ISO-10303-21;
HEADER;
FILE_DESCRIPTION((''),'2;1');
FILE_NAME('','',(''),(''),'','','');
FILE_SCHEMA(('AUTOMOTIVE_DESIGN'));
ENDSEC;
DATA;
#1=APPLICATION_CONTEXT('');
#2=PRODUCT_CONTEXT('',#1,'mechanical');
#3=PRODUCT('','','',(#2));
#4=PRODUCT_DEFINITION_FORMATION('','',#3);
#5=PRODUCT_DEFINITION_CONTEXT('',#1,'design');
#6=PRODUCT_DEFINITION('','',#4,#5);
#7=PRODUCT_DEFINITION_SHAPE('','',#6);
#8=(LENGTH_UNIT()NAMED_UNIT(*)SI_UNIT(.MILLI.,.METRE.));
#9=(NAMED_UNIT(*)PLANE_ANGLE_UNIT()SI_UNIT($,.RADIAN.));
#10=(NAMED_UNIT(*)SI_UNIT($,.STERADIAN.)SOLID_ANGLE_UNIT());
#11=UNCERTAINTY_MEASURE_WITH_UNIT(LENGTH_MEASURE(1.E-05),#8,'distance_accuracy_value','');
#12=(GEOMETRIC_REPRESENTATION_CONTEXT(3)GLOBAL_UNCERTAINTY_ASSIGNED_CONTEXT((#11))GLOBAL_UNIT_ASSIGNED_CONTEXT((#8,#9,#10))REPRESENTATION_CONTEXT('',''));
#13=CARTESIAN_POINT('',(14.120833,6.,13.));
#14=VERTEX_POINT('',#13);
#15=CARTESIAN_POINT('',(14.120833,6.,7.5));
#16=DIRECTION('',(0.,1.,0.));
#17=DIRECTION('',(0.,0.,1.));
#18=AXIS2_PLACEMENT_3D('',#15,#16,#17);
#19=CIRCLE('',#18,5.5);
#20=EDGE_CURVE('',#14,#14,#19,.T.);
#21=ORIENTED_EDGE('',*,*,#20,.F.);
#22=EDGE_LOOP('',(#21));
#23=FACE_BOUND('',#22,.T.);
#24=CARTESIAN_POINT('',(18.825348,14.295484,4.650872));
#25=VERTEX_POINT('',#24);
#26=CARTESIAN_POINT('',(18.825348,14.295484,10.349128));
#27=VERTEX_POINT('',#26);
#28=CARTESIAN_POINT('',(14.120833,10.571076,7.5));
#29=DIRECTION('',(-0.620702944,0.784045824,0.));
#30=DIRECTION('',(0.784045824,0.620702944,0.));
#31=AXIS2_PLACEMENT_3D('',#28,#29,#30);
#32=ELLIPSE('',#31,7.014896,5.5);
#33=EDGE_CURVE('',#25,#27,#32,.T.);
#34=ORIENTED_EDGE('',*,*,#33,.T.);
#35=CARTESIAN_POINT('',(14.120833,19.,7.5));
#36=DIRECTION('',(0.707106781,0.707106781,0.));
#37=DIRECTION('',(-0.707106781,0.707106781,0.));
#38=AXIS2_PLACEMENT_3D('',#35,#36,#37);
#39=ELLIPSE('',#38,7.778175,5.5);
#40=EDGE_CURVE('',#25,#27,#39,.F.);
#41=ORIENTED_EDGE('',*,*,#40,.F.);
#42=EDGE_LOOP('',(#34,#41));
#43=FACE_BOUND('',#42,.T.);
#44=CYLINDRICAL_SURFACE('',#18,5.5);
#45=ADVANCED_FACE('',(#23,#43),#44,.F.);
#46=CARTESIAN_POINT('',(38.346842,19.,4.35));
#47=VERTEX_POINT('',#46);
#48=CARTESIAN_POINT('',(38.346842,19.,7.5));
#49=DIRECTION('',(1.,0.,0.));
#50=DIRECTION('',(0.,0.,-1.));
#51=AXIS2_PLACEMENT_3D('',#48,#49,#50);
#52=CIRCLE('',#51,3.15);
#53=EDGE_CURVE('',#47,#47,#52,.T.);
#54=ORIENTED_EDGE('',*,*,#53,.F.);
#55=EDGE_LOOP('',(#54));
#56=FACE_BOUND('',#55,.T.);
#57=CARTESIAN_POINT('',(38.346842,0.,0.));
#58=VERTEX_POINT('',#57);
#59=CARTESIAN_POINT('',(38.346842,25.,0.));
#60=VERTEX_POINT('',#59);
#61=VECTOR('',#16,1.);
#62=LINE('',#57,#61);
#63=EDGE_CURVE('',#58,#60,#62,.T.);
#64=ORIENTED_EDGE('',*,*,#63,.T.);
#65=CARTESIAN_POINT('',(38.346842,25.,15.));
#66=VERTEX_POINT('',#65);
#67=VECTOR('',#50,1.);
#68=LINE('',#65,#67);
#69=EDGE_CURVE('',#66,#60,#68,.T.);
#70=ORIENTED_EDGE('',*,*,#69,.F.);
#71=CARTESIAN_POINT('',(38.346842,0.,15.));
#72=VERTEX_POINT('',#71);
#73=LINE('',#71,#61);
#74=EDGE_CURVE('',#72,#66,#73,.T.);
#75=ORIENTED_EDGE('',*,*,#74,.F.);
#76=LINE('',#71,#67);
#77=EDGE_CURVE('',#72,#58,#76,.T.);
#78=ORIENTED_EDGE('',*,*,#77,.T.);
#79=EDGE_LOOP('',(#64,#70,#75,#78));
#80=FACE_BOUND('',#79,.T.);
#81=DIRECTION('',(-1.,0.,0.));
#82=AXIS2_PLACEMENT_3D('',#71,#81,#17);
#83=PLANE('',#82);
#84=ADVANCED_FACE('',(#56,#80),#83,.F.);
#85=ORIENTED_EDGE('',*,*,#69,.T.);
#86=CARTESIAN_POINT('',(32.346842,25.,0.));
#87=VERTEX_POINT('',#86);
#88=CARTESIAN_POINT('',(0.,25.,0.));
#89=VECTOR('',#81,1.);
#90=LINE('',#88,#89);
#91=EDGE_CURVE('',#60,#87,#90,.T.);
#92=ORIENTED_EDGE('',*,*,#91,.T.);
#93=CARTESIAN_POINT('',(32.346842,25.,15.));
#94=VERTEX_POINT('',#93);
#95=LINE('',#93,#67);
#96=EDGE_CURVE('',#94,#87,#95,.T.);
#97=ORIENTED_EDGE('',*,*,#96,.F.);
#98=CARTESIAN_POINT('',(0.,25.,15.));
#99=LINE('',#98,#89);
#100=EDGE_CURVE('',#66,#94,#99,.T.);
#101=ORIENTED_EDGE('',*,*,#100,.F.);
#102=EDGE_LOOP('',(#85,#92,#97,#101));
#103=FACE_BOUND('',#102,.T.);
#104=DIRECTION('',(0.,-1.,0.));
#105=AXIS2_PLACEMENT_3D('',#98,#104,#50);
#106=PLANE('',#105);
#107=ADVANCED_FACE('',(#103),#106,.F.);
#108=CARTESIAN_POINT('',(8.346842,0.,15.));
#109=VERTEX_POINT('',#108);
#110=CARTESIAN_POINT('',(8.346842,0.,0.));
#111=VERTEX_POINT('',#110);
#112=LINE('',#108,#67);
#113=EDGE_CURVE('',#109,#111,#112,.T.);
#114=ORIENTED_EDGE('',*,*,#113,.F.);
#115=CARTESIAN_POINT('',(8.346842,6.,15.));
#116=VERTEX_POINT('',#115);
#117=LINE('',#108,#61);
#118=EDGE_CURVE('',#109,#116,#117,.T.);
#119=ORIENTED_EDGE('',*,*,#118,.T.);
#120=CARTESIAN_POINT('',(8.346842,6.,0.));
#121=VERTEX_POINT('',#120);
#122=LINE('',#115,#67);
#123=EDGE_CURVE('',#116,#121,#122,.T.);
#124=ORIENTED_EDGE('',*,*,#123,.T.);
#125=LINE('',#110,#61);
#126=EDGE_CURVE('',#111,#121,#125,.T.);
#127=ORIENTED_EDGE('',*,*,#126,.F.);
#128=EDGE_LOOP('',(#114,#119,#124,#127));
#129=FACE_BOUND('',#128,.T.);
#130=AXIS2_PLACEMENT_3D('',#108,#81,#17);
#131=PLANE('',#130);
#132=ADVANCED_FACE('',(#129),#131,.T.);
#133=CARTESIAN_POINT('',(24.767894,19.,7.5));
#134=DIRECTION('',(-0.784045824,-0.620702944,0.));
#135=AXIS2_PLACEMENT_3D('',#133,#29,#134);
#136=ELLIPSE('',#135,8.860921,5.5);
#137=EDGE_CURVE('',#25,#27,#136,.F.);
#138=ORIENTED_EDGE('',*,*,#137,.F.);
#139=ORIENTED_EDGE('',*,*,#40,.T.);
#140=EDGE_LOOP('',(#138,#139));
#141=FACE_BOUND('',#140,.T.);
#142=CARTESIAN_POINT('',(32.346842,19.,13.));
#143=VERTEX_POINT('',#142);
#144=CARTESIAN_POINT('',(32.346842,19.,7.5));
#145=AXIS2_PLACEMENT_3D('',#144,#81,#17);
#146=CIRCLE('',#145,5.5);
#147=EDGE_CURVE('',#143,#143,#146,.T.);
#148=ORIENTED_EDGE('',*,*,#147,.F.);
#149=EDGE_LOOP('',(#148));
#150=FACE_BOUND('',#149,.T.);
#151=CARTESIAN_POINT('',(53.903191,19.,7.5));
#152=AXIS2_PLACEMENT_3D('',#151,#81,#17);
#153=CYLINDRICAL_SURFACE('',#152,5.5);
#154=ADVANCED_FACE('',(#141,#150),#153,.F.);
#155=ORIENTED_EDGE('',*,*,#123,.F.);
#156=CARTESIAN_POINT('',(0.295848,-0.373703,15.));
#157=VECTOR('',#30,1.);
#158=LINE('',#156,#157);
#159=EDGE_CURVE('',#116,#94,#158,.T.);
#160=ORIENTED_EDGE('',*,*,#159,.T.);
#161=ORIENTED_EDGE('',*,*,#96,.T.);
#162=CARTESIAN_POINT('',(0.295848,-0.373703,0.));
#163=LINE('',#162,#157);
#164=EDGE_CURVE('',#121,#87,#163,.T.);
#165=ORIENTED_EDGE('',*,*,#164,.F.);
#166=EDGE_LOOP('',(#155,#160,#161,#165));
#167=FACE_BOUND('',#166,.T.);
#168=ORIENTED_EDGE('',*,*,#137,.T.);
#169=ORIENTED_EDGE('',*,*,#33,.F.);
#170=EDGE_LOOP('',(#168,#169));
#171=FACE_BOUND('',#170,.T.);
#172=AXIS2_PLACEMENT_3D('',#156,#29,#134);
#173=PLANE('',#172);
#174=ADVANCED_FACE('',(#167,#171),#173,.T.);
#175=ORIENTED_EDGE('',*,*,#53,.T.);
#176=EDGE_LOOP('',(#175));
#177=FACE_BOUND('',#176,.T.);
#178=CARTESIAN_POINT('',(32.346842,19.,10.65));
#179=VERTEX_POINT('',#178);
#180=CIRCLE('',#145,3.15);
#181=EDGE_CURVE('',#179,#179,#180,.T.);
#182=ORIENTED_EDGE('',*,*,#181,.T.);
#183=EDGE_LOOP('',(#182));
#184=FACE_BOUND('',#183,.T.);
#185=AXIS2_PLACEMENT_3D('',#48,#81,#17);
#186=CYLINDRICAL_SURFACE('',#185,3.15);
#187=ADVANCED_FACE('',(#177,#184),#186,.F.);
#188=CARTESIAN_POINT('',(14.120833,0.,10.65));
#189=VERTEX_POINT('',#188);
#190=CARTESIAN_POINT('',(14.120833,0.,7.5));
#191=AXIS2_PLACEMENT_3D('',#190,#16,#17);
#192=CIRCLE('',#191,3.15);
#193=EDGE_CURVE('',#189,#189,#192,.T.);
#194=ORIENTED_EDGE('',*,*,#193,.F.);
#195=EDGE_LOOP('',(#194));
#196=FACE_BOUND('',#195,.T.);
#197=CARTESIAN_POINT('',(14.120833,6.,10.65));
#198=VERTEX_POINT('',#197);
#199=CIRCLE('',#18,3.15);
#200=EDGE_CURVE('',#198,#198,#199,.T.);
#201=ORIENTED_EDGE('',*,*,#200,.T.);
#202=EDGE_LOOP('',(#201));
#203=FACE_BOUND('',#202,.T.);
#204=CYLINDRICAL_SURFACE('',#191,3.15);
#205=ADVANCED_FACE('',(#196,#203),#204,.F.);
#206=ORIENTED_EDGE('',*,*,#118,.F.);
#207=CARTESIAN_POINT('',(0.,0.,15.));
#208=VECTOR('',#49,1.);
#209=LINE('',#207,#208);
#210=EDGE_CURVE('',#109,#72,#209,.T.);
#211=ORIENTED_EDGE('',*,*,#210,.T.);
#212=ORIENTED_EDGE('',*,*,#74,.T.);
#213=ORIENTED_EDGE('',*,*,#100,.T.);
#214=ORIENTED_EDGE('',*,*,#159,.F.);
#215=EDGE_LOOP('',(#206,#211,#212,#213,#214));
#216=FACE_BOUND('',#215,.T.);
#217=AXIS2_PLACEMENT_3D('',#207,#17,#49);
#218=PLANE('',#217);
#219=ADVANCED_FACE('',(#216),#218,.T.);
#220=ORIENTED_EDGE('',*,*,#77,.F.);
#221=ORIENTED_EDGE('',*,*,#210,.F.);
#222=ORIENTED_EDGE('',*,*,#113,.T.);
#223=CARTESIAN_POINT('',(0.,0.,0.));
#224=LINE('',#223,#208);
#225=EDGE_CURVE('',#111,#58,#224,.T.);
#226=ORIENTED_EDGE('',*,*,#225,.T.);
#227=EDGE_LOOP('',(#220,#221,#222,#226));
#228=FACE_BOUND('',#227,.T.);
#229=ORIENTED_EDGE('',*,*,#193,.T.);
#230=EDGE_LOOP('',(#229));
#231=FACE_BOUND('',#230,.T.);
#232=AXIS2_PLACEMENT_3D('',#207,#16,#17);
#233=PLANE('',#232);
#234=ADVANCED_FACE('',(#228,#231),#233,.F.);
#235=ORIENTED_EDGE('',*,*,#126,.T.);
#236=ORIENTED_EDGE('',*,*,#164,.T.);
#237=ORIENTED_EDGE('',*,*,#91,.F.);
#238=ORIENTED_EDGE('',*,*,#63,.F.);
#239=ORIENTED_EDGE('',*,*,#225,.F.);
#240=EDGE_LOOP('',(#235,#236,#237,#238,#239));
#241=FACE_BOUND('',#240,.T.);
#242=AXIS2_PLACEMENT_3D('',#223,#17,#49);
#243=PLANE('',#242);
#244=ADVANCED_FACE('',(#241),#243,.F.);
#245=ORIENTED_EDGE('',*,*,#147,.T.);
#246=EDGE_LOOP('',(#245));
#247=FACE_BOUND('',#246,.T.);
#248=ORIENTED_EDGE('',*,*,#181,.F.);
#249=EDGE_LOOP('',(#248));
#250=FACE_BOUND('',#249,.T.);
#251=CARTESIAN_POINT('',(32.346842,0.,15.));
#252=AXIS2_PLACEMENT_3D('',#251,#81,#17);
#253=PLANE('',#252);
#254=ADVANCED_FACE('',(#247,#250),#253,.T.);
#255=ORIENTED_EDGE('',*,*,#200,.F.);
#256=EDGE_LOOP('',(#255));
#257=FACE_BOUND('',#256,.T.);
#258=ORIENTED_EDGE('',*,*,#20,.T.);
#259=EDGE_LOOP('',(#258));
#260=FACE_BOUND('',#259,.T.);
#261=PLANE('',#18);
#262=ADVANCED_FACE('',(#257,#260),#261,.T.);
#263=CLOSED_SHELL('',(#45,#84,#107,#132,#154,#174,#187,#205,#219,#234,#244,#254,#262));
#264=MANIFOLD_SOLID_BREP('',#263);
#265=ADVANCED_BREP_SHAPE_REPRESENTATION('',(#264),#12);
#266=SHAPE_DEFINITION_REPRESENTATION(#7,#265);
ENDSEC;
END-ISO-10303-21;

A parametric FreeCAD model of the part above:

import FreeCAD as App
import Part
import Sketcher
from FreeCAD import Vector


def add_polygon(sketch, points):
    """Adds a closed chain of lines whose ends are joined by coincident constraints."""
    first, n = sketch.GeometryCount, len(points)
    for a, b in zip(points, points[1:] + points[:1]):
        sketch.addGeometry(Part.LineSegment(App.Vector(*a, 0), App.Vector(*b, 0)), False)
    for i in range(n):
        sketch.addConstraint(Sketcher.Constraint("Coincident", first + i, 2, first + (i + 1) % n, 1))

doc = App.newDocument("Part")
params = doc.addObject("Spreadsheet::Sheet", "Params")
for row, (alias, value) in enumerate([
    ("sketch1_width", "30 mm"),
    ("sketch1_width2", "6 mm"),
    ("sketch1_height", "25 mm"),
    ("pad1_length", "15 mm"),
    ("sketch2_diameter", "6.3 mm"),
    ("sketch3_diameter", "11 mm"),
    ("sketch3_diameter2", "6.3 mm"),
    ("pocket2_length", "14 mm"),
    ("sketch4_diameter", "6.3 mm"),
    ("sketch5_diameter", "11 mm"),
    ("sketch5_diameter2", "6.3 mm"),
    ("pocket4_length", "32.346842 mm"),
], start=1):
    params.set(f"A{row}", alias)
    params.set(f"B{row}", "=" + value)
    params.setAlias(f"B{row}", alias)

body = doc.addObject("PartDesign::Body", "Body")

# Sketch on XY plane
sketch1 = doc.addObject("Sketcher::SketchObject", "Sketch")
body.addObject(sketch1)
sketch1.AttachmentSupport = (doc.XY_Plane, [""])
sketch1.MapMode = "FlatFace"
add_polygon(sketch1, [(8, 0), (38, 0), (38, 25), (32, 25), (8, 6)])  # lines 0-4
sketch1.addConstraint([
    Sketcher.Constraint("Horizontal", 0),
    Sketcher.Constraint("Vertical", 1),
    Sketcher.Constraint("Horizontal", 2),
    Sketcher.Constraint("Vertical", 4),
    Sketcher.Constraint("PointOnObject", 0, 2, -1),
    Sketcher.Constraint("Equal", 2, 4),
    Sketcher.Constraint("DistanceX", 0, 1, 0, 2, 30.0),
    Sketcher.Constraint("DistanceX", 2, 2, 2, 1, 6.0),
    Sketcher.Constraint("DistanceY", 1, 1, 1, 2, 25.0),
    Sketcher.Constraint("DistanceX", -1, 1, 0, 2, 38.346842),
])
sketch1.setExpression("Constraints[11]", "Params.sketch1_width")
sketch1.setExpression("Constraints[12]", "Params.sketch1_width2")
sketch1.setExpression("Constraints[13]", "Params.sketch1_height")
pad1 = doc.addObject("PartDesign::Pad", "Pad")
body.addObject(pad1)
pad1.Profile = sketch1
pad1.setExpression("Length", "Params.pad1_length")

# Sketch on XZ plane
sketch2 = doc.addObject("Sketcher::SketchObject", "Sketch001")
body.addObject(sketch2)
sketch2.AttachmentSupport = (doc.XZ_Plane, [""])
sketch2.MapMode = "FlatFace"
sketch2.AttachmentOffset = App.Placement(Vector(0, 0, -20), App.Rotation())
sketch2.addGeometry(Part.Circle(Vector(14.1, 7.5, 0), Vector(0, 0, 1), 3.1), False)
sketch2.addConstraint([
    Sketcher.Constraint("Diameter", 0, 6.3),
    Sketcher.Constraint("DistanceY", -1, 1, 0, 3, 7.5),
    Sketcher.Constraint("DistanceX", -1, 1, 0, 3, 14.120833),
])
sketch2.setExpression("Constraints[0]", "Params.sketch2_diameter")
pocket1 = doc.addObject("PartDesign::Pocket", "Pocket")
body.addObject(pocket1)
pocket1.Profile = sketch2
pocket1.Type = "ThroughAll"
pocket1.Reversed = True

# Sketch on XZ plane
sketch3 = doc.addObject("Sketcher::SketchObject", "Sketch002")
body.addObject(sketch3)
sketch3.AttachmentSupport = (doc.XZ_Plane, [""])
sketch3.MapMode = "FlatFace"
sketch3.AttachmentOffset = App.Placement(Vector(0, 0, -20), App.Rotation())
sketch3.addGeometry([
    Part.Circle(Vector(14.1, 7.5, 0), Vector(0, 0, 1), 5.5),
    Part.Circle(Vector(14.1, 7.5, 0), Vector(0, 0, 1), 3.1),
], False)
sketch3.addConstraint([
    Sketcher.Constraint("Coincident", 1, 3, 0, 3),
    Sketcher.Constraint("Diameter", 0, 11.0),
    Sketcher.Constraint("Diameter", 1, 6.3),
    Sketcher.Constraint("DistanceY", -1, 1, 0, 3, 7.5),
    Sketcher.Constraint("DistanceX", -1, 1, 0, 3, 14.120833),
])
sketch3.setExpression("Constraints[1]", "Params.sketch3_diameter")
sketch3.setExpression("Constraints[2]", "Params.sketch3_diameter2")
pocket2 = doc.addObject("PartDesign::Pocket", "Pocket001")
body.addObject(pocket2)
pocket2.Profile = sketch3
pocket2.setExpression("Length", "Params.pocket2_length")
pocket2.Reversed = True

# Sketch on YZ plane
sketch4 = doc.addObject("Sketcher::SketchObject", "Sketch003")
body.addObject(sketch4)
sketch4.AttachmentSupport = (doc.YZ_Plane, [""])
sketch4.MapMode = "FlatFace"
sketch4.addGeometry(Part.Circle(Vector(19, 7.5, 0), Vector(0, 0, 1), 3.1), False)
sketch4.addConstraint([
    Sketcher.Constraint("Diameter", 0, 6.3),
    Sketcher.Constraint("DistanceX", -1, 1, 0, 3, 19.0),
    Sketcher.Constraint("DistanceY", -1, 1, 0, 3, 7.5),
])
sketch4.setExpression("Constraints[0]", "Params.sketch4_diameter")
pocket3 = doc.addObject("PartDesign::Pocket", "Pocket002")
body.addObject(pocket3)
pocket3.Profile = sketch4
pocket3.Type = "ThroughAll"
pocket3.Reversed = True

# Sketch on YZ plane
sketch5 = doc.addObject("Sketcher::SketchObject", "Sketch004")
body.addObject(sketch5)
sketch5.AttachmentSupport = (doc.YZ_Plane, [""])
sketch5.MapMode = "FlatFace"
sketch5.addGeometry([
    Part.Circle(Vector(19, 7.5, 0), Vector(0, 0, 1), 5.5),
    Part.Circle(Vector(19, 7.5, 0), Vector(0, 0, 1), 3.1),
], False)
sketch5.addConstraint([
    Sketcher.Constraint("Coincident", 1, 3, 0, 3),
    Sketcher.Constraint("Diameter", 0, 11.0),
    Sketcher.Constraint("Diameter", 1, 6.3),
    Sketcher.Constraint("DistanceX", -1, 1, 0, 3, 19.0),
    Sketcher.Constraint("DistanceY", -1, 1, 0, 3, 7.5),
])
sketch5.setExpression("Constraints[1]", "Params.sketch5_diameter")
sketch5.setExpression("Constraints[2]", "Params.sketch5_diameter2")
pocket4 = doc.addObject("PartDesign::Pocket", "Pocket003")
body.addObject(pocket4)
pocket4.Profile = sketch5
pocket4.setExpression("Length", "Params.pocket4_length")
pocket4.Reversed = True

doc.recompute()
